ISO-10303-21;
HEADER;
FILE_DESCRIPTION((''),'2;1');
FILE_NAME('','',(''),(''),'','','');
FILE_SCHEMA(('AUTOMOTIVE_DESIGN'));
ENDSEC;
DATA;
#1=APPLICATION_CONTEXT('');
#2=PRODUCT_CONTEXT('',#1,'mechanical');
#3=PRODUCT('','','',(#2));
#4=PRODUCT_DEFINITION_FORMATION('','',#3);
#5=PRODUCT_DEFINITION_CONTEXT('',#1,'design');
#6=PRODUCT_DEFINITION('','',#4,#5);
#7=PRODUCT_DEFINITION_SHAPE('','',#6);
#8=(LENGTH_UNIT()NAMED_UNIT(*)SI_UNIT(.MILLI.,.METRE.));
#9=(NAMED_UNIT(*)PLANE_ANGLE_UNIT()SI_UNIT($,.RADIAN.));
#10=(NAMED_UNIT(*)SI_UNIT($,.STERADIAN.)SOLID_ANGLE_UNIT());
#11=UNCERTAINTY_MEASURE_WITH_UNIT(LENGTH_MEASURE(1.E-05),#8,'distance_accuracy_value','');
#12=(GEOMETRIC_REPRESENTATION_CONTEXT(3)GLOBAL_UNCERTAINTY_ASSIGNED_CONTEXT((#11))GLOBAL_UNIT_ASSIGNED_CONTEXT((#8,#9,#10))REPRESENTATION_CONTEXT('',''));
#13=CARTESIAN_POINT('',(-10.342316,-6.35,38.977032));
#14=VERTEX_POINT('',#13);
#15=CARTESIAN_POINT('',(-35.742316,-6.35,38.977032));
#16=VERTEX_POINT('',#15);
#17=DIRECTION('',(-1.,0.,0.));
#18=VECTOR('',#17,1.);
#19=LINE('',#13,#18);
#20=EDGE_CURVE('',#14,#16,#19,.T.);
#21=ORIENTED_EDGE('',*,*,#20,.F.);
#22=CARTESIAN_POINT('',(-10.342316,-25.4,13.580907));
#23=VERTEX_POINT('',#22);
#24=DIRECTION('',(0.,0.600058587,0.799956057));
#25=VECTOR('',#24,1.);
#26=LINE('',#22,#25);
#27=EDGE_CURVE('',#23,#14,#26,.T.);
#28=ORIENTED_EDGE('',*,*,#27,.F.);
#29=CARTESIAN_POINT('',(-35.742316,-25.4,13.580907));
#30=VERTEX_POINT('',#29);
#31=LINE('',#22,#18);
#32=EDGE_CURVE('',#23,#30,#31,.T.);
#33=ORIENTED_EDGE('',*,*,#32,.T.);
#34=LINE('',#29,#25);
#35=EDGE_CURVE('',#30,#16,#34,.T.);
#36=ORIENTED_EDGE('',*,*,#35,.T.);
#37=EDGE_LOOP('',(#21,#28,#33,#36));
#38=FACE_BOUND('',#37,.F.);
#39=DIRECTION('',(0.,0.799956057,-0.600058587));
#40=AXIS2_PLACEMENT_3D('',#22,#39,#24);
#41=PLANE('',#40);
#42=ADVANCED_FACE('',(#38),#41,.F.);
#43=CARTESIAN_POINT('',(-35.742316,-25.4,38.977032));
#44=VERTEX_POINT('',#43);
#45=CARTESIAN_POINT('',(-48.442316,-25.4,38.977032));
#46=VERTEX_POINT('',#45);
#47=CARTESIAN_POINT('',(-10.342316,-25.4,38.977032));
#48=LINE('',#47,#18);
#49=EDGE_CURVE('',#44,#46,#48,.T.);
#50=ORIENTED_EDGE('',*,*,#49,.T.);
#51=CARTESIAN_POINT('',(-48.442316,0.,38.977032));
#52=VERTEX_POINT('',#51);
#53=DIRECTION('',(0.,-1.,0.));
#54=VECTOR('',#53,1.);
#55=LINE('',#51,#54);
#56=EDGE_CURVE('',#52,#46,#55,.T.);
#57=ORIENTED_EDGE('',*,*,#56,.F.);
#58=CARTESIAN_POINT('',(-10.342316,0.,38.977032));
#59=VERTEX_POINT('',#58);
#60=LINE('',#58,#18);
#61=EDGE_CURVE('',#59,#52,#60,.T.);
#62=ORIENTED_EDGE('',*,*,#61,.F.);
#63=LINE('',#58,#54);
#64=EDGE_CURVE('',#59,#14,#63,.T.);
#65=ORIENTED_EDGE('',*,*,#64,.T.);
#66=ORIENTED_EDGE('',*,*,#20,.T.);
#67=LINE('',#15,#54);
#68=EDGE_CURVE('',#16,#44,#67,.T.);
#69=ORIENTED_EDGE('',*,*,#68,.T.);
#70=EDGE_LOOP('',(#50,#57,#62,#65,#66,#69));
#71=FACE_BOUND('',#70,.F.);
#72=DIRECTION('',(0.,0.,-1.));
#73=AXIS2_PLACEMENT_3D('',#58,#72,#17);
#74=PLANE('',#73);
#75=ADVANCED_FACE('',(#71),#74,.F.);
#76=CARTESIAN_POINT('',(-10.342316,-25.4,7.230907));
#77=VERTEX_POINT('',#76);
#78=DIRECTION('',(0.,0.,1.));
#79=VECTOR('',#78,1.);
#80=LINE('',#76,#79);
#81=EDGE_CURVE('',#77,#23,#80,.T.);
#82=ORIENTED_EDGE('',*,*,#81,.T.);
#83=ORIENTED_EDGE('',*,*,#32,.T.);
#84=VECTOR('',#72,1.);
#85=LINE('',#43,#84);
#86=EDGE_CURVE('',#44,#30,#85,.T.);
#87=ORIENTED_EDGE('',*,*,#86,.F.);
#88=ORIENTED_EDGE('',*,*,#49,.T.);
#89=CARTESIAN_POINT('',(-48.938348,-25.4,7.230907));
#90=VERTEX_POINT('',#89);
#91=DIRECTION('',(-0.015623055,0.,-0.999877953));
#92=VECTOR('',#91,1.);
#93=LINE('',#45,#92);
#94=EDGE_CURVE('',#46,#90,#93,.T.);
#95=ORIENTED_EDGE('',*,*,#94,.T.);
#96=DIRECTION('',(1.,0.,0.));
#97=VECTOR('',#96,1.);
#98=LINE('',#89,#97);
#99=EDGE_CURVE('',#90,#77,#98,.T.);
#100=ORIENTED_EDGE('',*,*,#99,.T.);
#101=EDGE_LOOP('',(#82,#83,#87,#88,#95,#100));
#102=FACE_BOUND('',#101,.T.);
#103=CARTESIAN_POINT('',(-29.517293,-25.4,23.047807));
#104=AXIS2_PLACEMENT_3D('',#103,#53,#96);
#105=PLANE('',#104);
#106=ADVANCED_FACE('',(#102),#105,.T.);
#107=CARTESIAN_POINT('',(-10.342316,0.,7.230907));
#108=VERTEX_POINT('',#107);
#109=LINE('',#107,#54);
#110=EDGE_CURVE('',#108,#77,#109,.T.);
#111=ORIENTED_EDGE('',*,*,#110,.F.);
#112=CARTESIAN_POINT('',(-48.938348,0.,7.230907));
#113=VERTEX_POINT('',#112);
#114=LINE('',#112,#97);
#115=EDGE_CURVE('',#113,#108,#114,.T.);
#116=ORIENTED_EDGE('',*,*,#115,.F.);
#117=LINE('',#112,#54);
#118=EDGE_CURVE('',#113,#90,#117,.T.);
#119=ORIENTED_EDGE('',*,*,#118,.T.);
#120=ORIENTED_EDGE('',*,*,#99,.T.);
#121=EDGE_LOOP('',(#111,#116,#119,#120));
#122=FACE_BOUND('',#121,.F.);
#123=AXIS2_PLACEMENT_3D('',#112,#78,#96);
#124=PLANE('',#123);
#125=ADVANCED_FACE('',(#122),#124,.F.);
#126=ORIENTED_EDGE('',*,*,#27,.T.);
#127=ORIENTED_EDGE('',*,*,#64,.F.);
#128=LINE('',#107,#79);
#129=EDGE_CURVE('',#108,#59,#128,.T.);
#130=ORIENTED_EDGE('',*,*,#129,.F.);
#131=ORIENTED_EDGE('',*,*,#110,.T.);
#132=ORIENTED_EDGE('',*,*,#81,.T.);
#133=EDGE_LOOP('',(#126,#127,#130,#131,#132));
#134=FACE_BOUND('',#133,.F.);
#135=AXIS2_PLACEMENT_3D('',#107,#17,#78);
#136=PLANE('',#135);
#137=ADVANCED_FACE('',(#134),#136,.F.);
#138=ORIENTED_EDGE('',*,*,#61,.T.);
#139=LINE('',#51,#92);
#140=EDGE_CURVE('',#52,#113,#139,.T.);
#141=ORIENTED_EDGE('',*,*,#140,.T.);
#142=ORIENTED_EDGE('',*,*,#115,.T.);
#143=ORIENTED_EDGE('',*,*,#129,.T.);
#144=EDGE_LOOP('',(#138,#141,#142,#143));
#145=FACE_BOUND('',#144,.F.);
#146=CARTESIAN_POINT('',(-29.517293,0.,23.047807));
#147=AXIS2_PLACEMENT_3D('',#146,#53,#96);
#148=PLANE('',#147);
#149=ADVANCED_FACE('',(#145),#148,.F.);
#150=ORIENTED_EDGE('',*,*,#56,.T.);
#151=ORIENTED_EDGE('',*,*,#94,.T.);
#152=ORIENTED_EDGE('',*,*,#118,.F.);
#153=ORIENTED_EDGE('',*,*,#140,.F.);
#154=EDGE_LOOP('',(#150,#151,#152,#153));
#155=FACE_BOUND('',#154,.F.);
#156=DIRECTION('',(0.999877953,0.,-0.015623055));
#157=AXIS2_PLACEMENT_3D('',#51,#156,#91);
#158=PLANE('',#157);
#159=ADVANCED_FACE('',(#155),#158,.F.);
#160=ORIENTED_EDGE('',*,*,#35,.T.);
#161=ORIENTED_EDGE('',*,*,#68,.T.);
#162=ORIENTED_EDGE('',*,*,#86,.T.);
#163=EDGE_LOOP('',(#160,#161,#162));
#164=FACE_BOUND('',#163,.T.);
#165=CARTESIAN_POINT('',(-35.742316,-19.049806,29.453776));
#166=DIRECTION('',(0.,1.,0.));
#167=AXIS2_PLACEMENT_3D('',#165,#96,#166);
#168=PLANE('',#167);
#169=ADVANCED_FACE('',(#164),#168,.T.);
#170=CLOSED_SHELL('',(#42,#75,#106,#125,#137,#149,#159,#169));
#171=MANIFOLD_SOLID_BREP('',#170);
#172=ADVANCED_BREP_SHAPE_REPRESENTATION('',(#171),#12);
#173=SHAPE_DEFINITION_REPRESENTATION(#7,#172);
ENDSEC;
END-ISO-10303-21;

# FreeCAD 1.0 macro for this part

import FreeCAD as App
import Part
import Sketcher
Q = App.Units.Quantity


def add_polygon(sketch, points):
    """Adds a closed chain of lines whose ends are joined by coincident constraints."""
    first, n = sketch.GeometryCount, len(points)
    for a, b in zip(points, points[1:] + points[:1]):
        sketch.addGeometry(Part.LineSegment(App.Vector(*a, 0), App.Vector(*b, 0)), False)
    for i in range(n):
        sketch.addConstraint(Sketcher.Constraint("Coincident", first + i, 2, first + (i + 1) % n, 1))

doc = App.newDocument("Part")
params = doc.addObject("Spreadsheet::Sheet", "Params")
for row, (alias, value) in enumerate([
    ("sketch1_width", "1.5 in"),
    ("sketch1_length", "1.25 in"),
    ("pad1_length", "1 in"),
    ("sketch2_width", "0.75 in"),
    ("pocket1_length", "1 in"),
], start=1):
    params.set(f"A{row}", alias)
    params.set(f"B{row}", "=" + value)
    params.setAlias(f"B{row}", alias)

body = doc.addObject("PartDesign::Body", "Body")

# Sketch on XZ plane
sketch1 = doc.addObject("Sketcher::SketchObject", "Sketch")
body.addObject(sketch1)
sketch1.AttachmentSupport = (doc.XZ_Plane, [""])
sketch1.MapMode = "FlatFace"
add_polygon(sketch1, [(-10, 39), (-48, 39), (-49, 7), (-10, 7)])  # lines 0-3
sketch1.addConstraint([
    Sketcher.Constraint("Horizontal", 0),
    Sketcher.Constraint("Horizontal", 2),
    Sketcher.Constraint("Vertical", 3),
    Sketcher.Constraint("DistanceX", 0, 2, 0, 1, Q("1.5 in")),
    Sketcher.Constraint("Distance", 1, Q("1.25 in")),
    Sketcher.Constraint("DistanceX", 2, 1, 2, 2, Q("38.596032 mm")),
    Sketcher.Constraint("DistanceX", 0, 2, -1, 1, Q("48.442316 mm")),
    Sketcher.Constraint("DistanceY", -1, 1, 0, 2, Q("38.977032 mm")),
])
sketch1.setExpression("Constraints[7]", "Params.sketch1_width")
sketch1.setExpression("Constraints[8]", "Params.sketch1_length")
pad1 = doc.addObject("PartDesign::Pad", "Pad")
body.addObject(pad1)
pad1.Profile = sketch1
pad1.setExpression("Length", "Params.pad1_length")

# Sketch on YZ plane
sketch2 = doc.addObject("Sketcher::SketchObject", "Sketch001")
body.addObject(sketch2)
sketch2.AttachmentSupport = (doc.YZ_Plane, [""])
sketch2.MapMode = "FlatFace"
sketch2.AttachmentOffset = App.Placement(App.Vector(0, 0, -10.342316), App.Rotation())
add_polygon(sketch2, [(-25, 39), (-25, 14), (-6, 39)])  # lines 0-2
sketch2.addConstraint([
    Sketcher.Constraint("Vertical", 0),
    Sketcher.Constraint("Horizontal", 2),
    Sketcher.Constraint("DistanceX", 0, 2, -1, 1, Q("1 in")),
    Sketcher.Constraint("DistanceX", 2, 2, 2, 1, Q("0.75 in")),
    Sketcher.Constraint("Distance", 1, Q("31.7469 mm")),
    Sketcher.Constraint("DistanceY", -1, 1, 0, 2, Q("13.580907 mm")),
])
sketch2.setExpression("Constraints[6]", "Params.sketch2_width")
pocket1 = doc.addObject("PartDesign::Pocket", "Pocket")
body.addObject(pocket1)
pocket1.Profile = sketch2
pocket1.setExpression("Length", "Params.pocket1_length")

doc.recompute()
